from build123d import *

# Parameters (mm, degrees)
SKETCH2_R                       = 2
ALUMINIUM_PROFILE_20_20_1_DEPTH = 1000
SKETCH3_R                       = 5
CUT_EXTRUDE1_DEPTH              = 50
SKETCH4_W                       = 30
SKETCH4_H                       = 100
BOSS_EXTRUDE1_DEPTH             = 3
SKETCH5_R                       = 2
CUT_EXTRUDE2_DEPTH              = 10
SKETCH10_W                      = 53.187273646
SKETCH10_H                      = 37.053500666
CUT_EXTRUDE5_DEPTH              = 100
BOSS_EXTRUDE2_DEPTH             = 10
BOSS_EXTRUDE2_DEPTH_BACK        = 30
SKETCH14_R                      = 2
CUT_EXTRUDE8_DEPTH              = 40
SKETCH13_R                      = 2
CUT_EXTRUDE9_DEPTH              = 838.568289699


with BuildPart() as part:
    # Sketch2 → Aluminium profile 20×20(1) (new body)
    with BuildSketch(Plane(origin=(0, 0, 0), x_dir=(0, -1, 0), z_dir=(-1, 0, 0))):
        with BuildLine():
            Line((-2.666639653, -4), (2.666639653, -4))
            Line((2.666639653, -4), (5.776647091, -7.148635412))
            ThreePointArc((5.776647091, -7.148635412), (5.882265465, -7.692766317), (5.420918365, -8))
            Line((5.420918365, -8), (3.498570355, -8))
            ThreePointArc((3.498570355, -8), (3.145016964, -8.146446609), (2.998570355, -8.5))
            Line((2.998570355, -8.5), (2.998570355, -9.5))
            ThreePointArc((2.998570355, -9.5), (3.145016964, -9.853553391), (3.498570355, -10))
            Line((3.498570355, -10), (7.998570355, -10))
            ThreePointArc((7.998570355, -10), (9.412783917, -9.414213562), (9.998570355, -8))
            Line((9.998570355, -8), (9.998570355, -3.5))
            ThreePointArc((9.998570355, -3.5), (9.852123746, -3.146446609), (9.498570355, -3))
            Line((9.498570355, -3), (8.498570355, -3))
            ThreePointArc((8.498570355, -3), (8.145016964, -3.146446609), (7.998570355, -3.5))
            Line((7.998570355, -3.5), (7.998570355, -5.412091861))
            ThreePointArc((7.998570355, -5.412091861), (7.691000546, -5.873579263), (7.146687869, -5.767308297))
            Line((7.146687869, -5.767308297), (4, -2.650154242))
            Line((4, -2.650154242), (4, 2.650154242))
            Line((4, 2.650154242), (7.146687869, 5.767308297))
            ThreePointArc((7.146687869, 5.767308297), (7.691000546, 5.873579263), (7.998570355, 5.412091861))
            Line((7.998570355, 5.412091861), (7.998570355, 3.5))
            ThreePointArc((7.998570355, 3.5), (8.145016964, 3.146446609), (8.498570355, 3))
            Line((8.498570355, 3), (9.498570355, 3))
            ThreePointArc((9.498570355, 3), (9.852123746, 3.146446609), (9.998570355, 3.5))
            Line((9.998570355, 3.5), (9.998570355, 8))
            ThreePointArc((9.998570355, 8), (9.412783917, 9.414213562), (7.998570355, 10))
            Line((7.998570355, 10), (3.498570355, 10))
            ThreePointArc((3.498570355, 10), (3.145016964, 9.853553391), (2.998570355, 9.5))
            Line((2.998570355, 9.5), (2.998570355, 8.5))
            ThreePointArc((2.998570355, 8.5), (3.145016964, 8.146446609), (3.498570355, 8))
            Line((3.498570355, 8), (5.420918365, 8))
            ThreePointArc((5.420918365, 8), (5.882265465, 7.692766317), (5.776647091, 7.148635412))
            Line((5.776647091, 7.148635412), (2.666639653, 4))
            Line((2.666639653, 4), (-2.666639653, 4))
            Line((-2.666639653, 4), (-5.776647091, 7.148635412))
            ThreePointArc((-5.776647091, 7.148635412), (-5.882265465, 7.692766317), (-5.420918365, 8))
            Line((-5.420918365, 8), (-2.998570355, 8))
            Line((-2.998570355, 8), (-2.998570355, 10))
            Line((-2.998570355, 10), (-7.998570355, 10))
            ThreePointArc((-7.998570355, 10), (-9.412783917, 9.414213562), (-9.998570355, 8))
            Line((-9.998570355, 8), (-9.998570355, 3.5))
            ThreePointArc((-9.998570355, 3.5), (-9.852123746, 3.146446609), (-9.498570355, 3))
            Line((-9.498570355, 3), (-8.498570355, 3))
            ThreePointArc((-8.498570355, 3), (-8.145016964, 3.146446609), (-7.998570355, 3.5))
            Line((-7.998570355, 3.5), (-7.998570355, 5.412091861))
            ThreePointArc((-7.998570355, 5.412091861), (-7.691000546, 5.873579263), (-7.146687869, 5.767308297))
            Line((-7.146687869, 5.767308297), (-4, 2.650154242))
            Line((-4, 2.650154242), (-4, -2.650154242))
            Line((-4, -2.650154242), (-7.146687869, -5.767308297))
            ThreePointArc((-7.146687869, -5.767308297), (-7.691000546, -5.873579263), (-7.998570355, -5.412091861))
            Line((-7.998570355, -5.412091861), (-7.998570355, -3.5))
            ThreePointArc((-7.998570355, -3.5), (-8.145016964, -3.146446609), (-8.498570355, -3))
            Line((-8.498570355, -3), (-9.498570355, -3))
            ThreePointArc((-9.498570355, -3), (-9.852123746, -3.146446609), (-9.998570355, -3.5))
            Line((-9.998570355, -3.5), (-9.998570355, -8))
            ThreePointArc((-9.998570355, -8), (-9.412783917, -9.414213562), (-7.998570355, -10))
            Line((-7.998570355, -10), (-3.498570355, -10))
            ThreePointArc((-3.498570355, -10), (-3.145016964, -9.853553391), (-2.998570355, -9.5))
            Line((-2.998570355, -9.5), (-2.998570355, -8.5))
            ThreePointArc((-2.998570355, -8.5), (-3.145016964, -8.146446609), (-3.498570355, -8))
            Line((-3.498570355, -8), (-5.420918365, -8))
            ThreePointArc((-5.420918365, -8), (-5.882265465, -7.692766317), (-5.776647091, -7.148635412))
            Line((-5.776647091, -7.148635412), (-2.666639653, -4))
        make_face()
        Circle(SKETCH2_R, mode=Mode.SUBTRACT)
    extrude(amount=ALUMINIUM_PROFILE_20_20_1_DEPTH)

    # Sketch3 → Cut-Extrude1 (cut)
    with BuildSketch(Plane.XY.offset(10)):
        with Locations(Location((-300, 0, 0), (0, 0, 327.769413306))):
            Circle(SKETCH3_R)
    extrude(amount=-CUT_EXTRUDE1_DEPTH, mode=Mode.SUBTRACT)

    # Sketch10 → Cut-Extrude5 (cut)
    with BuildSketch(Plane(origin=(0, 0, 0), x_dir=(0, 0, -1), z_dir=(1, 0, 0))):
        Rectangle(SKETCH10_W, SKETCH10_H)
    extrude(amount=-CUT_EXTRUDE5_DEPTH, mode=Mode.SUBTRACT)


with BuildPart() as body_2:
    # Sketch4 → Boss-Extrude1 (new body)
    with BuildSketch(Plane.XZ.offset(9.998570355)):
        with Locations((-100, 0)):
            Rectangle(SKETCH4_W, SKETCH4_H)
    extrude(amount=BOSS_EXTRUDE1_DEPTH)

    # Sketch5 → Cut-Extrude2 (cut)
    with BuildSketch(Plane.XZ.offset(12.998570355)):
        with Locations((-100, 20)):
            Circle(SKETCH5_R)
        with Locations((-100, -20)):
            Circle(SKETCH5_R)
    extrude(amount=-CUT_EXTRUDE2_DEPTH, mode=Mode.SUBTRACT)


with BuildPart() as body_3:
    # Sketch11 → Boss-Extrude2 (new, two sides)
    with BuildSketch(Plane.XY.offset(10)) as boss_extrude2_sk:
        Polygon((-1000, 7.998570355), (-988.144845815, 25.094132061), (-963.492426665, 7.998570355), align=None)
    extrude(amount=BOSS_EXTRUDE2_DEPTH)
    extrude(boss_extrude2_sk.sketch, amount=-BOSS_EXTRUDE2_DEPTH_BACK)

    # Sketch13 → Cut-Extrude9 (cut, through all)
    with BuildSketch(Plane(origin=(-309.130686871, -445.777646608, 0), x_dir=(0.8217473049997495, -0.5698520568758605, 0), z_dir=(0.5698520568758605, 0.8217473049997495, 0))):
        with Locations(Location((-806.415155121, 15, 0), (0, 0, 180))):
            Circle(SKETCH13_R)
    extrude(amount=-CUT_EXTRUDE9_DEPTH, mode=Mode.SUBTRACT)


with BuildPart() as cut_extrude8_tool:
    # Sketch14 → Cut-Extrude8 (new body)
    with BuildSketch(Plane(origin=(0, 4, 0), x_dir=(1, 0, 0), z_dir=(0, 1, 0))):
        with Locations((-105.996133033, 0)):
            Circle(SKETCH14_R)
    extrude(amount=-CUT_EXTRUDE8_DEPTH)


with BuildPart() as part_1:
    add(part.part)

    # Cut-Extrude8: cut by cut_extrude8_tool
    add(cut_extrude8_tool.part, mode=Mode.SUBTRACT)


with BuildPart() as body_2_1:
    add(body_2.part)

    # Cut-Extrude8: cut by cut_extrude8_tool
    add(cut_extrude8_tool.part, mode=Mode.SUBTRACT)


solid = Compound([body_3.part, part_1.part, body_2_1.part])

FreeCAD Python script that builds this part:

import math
import FreeCAD as App
import Part
import Sketcher

V = App.Vector
Q = App.Units.Quantity

doc = App.newDocument("Part")
body = doc.addObject("PartDesign::Body", "Body")

sketch1 = body.newObject("Sketcher::SketchObject", "Sketch")
sketch1.AttachmentSupport = (doc.getObject("YZ_Plane"), [""])
sketch1.MapMode = "FlatFace"
sketch1.addGeometry([
    Part.LineSegment(V(2.66664, -4, 0), V(-2.66664, -4, 0)),
    Part.LineSegment(V(-2.66664, -4, 0), V(-5.776647, -7.148635, 0)),
    Part.ArcOfCircle(Part.Circle(V(-5.420918, -7.5, 0), V(0, 0, 1), 0.5), math.radians(135.353622), math.radians(270)),
    Part.LineSegment(V(-5.420918, -8, 0), V(-3.49857, -8, 0)),
    Part.ArcOfCircle(Part.Circle(V(-3.49857, -8.5, 0), V(0, 0, 1), 0.5), math.radians(0), math.radians(90)),
    Part.LineSegment(V(-2.99857, -8.5, 0), V(-2.99857, -9.5, 0)),
    Part.ArcOfCircle(Part.Circle(V(-3.49857, -9.5, 0), V(0, 0, 1), 0.5), math.radians(-90), math.radians(0)),
    Part.LineSegment(V(-3.49857, -10, 0), V(-7.99857, -10, 0)),
    Part.ArcOfCircle(Part.Circle(V(-7.99857, -8, 0), V(0, 0, 1), 2), math.radians(-180), math.radians(-90)),
    Part.LineSegment(V(-9.99857, -8, 0), V(-9.99857, -3.5, 0)),
    Part.ArcOfCircle(Part.Circle(V(-9.49857, -3.5, 0), V(0, 0, 1), 0.5), math.radians(90), math.radians(180)),
    Part.LineSegment(V(-9.49857, -3, 0), V(-8.49857, -3, 0)),
    Part.ArcOfCircle(Part.Circle(V(-8.49857, -3.5, 0), V(0, 0, 1), 0.5), math.radians(0), math.radians(90)),
    Part.LineSegment(V(-7.99857, -3.5, 0), V(-7.99857, -5.412092, 0)),
    Part.ArcOfCircle(Part.Circle(V(-7.49857, -5.412092, 0), V(0, 0, 1), 0.5), math.radians(180), math.radians(314.729854)),
    Part.LineSegment(V(-7.146688, -5.767308, 0), V(-4, -2.650154, 0)),
    Part.LineSegment(V(-4, -2.650154, 0), V(-4, 2.650154, 0)),
    Part.LineSegment(V(-4, 2.650154, 0), V(-7.146688, 5.767308, 0)),
    Part.ArcOfCircle(Part.Circle(V(-7.49857, 5.412092, 0), V(0, 0, 1), 0.5), math.radians(45.270146), math.radians(180)),
    Part.LineSegment(V(-7.99857, 5.412092, 0), V(-7.99857, 3.5, 0)),
    Part.ArcOfCircle(Part.Circle(V(-8.49857, 3.5, 0), V(0, 0, 1), 0.5), math.radians(-90), math.radians(0)),
    Part.LineSegment(V(-8.49857, 3, 0), V(-9.49857, 3, 0)),
    Part.ArcOfCircle(Part.Circle(V(-9.49857, 3.5, 0), V(0, 0, 1), 0.5), math.radians(180), math.radians(270)),
    Part.LineSegment(V(-9.99857, 3.5, 0), V(-9.99857, 8, 0)),
    Part.ArcOfCircle(Part.Circle(V(-7.99857, 8, 0), V(0, 0, 1), 2), math.radians(90), math.radians(180)),
    Part.LineSegment(V(-7.99857, 10, 0), V(-3.49857, 10, 0)),
    Part.ArcOfCircle(Part.Circle(V(-3.49857, 9.5, 0), V(0, 0, 1), 0.5), math.radians(0), math.radians(90)),
    Part.LineSegment(V(-2.99857, 9.5, 0), V(-2.99857, 8.5, 0)),
    Part.ArcOfCircle(Part.Circle(V(-3.49857, 8.5, 0), V(0, 0, 1), 0.5), math.radians(-90), math.radians(0)),
    Part.LineSegment(V(-3.49857, 8, 0), V(-5.420918, 8, 0)),
    Part.ArcOfCircle(Part.Circle(V(-5.420918, 7.5, 0), V(0, 0, 1), 0.5), math.radians(90), math.radians(224.646378)),
    Part.LineSegment(V(-5.776647, 7.148635, 0), V(-2.66664, 4, 0)),
    Part.LineSegment(V(-2.66664, 4, 0), V(2.66664, 4, 0)),
    Part.LineSegment(V(2.66664, 4, 0), V(5.776647, 7.148635, 0)),
    Part.ArcOfCircle(Part.Circle(V(5.420918, 7.5, 0), V(0, 0, 1), 0.5), math.radians(-44.646378), math.radians(90)),
    Part.LineSegment(V(5.420918, 8, 0), V(2.99857, 8, 0)),
    Part.LineSegment(V(2.99857, 8, 0), V(2.99857, 10, 0)),
    Part.LineSegment(V(2.99857, 10, 0), V(7.99857, 10, 0)),
    Part.ArcOfCircle(Part.Circle(V(7.99857, 8, 0), V(0, 0, 1), 2), math.radians(0), math.radians(90)),
    Part.LineSegment(V(9.99857, 8, 0), V(9.99857, 3.5, 0)),
    Part.ArcOfCircle(Part.Circle(V(9.49857, 3.5, 0), V(0, 0, 1), 0.5), math.radians(-90), math.radians(0)),
    Part.LineSegment(V(9.49857, 3, 0), V(8.49857, 3, 0)),
    Part.ArcOfCircle(Part.Circle(V(8.49857, 3.5, 0), V(0, 0, 1), 0.5), math.radians(180), math.radians(270)),
    Part.LineSegment(V(7.99857, 3.5, 0), V(7.99857, 5.412092, 0)),
    Part.ArcOfCircle(Part.Circle(V(7.49857, 5.412092, 0), V(0, 0, 1), 0.5), math.radians(0), math.radians(134.729854)),
    Part.LineSegment(V(7.146688, 5.767308, 0), V(4, 2.650154, 0)),
    Part.LineSegment(V(4, 2.650154, 0), V(4, -2.650154, 0)),
    Part.LineSegment(V(4, -2.650154, 0), V(7.146688, -5.767308, 0)),
    Part.ArcOfCircle(Part.Circle(V(7.49857, -5.412092, 0), V(0, 0, 1), 0.5), math.radians(-134.729854), math.radians(0)),
    Part.LineSegment(V(7.99857, -5.412092, 0), V(7.99857, -3.5, 0)),
    Part.ArcOfCircle(Part.Circle(V(8.49857, -3.5, 0), V(0, 0, 1), 0.5), math.radians(90), math.radians(180)),
    Part.LineSegment(V(8.49857, -3, 0), V(9.49857, -3, 0)),
    Part.ArcOfCircle(Part.Circle(V(9.49857, -3.5, 0), V(0, 0, 1), 0.5), math.radians(0), math.radians(90)),
    Part.LineSegment(V(9.99857, -3.5, 0), V(9.99857, -8, 0)),
    Part.ArcOfCircle(Part.Circle(V(7.99857, -8, 0), V(0, 0, 1), 2), math.radians(-90), math.radians(0)),
    Part.LineSegment(V(7.99857, -10, 0), V(3.49857, -10, 0)),
    Part.ArcOfCircle(Part.Circle(V(3.49857, -9.5, 0), V(0, 0, 1), 0.5), math.radians(180), math.radians(270)),
    Part.LineSegment(V(2.99857, -9.5, 0), V(2.99857, -8.5, 0)),
    Part.ArcOfCircle(Part.Circle(V(3.49857, -8.5, 0), V(0, 0, 1), 0.5), math.radians(90), math.radians(180)),
    Part.LineSegment(V(3.49857, -8, 0), V(5.420918, -8, 0)),
    Part.ArcOfCircle(Part.Circle(V(5.420918, -7.5, 0), V(0, 0, 1), 0.5), math.radians(-90), math.radians(44.646378)),
    Part.LineSegment(V(5.776647, -7.148635, 0), V(2.66664, -4, 0)),
    Part.Circle(V(0, 0, 0), V(0, 0, 1), 2),
], False)
sketch1.addConstraint([
    Sketcher.Constraint("Coincident", 0, 2, 1, 1),
    Sketcher.Constraint("Tangent", 1, 2, 2, 1),
    Sketcher.Constraint("Tangent", 2, 2, 3, 1),
    Sketcher.Constraint("Tangent", 3, 2, 4, 2),
    Sketcher.Constraint("Tangent", 4, 1, 5, 1),
    Sketcher.Constraint("Tangent", 5, 2, 6, 2),
    Sketcher.Constraint("Tangent", 6, 1, 7, 1),
    Sketcher.Constraint("Tangent", 7, 2, 8, 2),
    Sketcher.Constraint("Tangent", 8, 1, 9, 1),
    Sketcher.Constraint("Tangent", 9, 2, 10, 2),
    Sketcher.Constraint("Tangent", 10, 1, 11, 1),
    Sketcher.Constraint("Tangent", 11, 2, 12, 2),
    Sketcher.Constraint("Tangent", 12, 1, 13, 1),
    Sketcher.Constraint("Tangent", 13, 2, 14, 1),
    Sketcher.Constraint("Tangent", 14, 2, 15, 1),
    Sketcher.Constraint("Coincident", 15, 2, 16, 1),
    Sketcher.Constraint("Coincident", 16, 2, 17, 1),
    Sketcher.Constraint("Tangent", 17, 2, 18, 1),
    Sketcher.Constraint("Tangent", 18, 2, 19, 1),
    Sketcher.Constraint("Tangent", 19, 2, 20, 2),
    Sketcher.Constraint("Tangent", 20, 1, 21, 1),
    Sketcher.Constraint("Tangent", 21, 2, 22, 2),
    Sketcher.Constraint("Tangent", 22, 1, 23, 1),
    Sketcher.Constraint("Tangent", 23, 2, 24, 2),
    Sketcher.Constraint("Tangent", 24, 1, 25, 1),
    Sketcher.Constraint("Tangent", 25, 2, 26, 2),
    Sketcher.Constraint("Tangent", 26, 1, 27, 1),
    Sketcher.Constraint("Tangent", 27, 2, 28, 2),
    Sketcher.Constraint("Tangent", 28, 1, 29, 1),
    Sketcher.Constraint("Tangent", 29, 2, 30, 1),
    Sketcher.Constraint("Tangent", 30, 2, 31, 1),
    Sketcher.Constraint("Coincident", 31, 2, 32, 1),
    Sketcher.Constraint("Coincident", 32, 2, 33, 1),
    Sketcher.Constraint("Tangent", 33, 2, 34, 1),
    Sketcher.Constraint("Tangent", 34, 2, 35, 1),
    Sketcher.Constraint("Coincident", 35, 2, 36, 1),
    Sketcher.Constraint("Coincident", 36, 2, 37, 1),
    Sketcher.Constraint("Tangent", 37, 2, 38, 2),
    Sketcher.Constraint("Tangent", 38, 1, 39, 1),
    Sketcher.Constraint("Tangent", 39, 2, 40, 2),
    Sketcher.Constraint("Tangent", 40, 1, 41, 1),
    Sketcher.Constraint("Tangent", 41, 2, 42, 2),
    Sketcher.Constraint("Tangent", 42, 1, 43, 1),
    Sketcher.Constraint("Tangent", 43, 2, 44, 1),
    Sketcher.Constraint("Tangent", 44, 2, 45, 1),
    Sketcher.Constraint("Coincident", 45, 2, 46, 1),
    Sketcher.Constraint("Coincident", 46, 2, 47, 1),
    Sketcher.Constraint("Tangent", 47, 2, 48, 1),
    Sketcher.Constraint("Tangent", 48, 2, 49, 1),
    Sketcher.Constraint("Tangent", 49, 2, 50, 2),
    Sketcher.Constraint("Tangent", 50, 1, 51, 1),
    Sketcher.Constraint("Tangent", 51, 2, 52, 2),
    Sketcher.Constraint("Tangent", 52, 1, 53, 1),
    Sketcher.Constraint("Tangent", 53, 2, 54, 2),
    Sketcher.Constraint("Tangent", 54, 1, 55, 1),
    Sketcher.Constraint("Tangent", 55, 2, 56, 2),
    Sketcher.Constraint("Tangent", 56, 1, 57, 1),
    Sketcher.Constraint("Tangent", 57, 2, 58, 2),
    Sketcher.Constraint("Tangent", 58, 1, 59, 1),
    Sketcher.Constraint("Tangent", 59, 2, 60, 1),
    Sketcher.Constraint("Tangent", 60, 2, 61, 1),
    Sketcher.Constraint("Coincident", 61, 2, 0, 1),
    Sketcher.Constraint("Horizontal", 0),
    Sketcher.Constraint("Horizontal", 3),
    Sketcher.Constraint("Vertical", 5),
    Sketcher.Constraint("Horizontal", 7),
    Sketcher.Constraint("Vertical", 9),
    Sketcher.Constraint("Horizontal", 11),
    Sketcher.Constraint("Vertical", 13),
    Sketcher.Constraint("Vertical", 16),
    Sketcher.Constraint("Vertical", 19),
    Sketcher.Constraint("Horizontal", 21),
    Sketcher.Constraint("Vertical", 23),
    Sketcher.Constraint("Horizontal", 25),
    Sketcher.Constraint("Vertical", 27),
    Sketcher.Constraint("Horizontal", 29),
    Sketcher.Constraint("Horizontal", 32),
    Sketcher.Constraint("Horizontal", 35),
    Sketcher.Constraint("Vertical", 36),
    Sketcher.Constraint("Horizontal", 37),
    Sketcher.Constraint("Vertical", 39),
    Sketcher.Constraint("Horizontal", 41),
    Sketcher.Constraint("Vertical", 43),
    Sketcher.Constraint("Vertical", 46),
    Sketcher.Constraint("Vertical", 49),
    Sketcher.Constraint("Horizontal", 51),
    Sketcher.Constraint("Vertical", 53),
    Sketcher.Constraint("Horizontal", 55),
    Sketcher.Constraint("Vertical", 57),
    Sketcher.Constraint("Horizontal", 59),
    Sketcher.Constraint("Coincident", 62, 3, -1, 1),
    Sketcher.Constraint("Equal", 2, 4),
    Sketcher.Constraint("Equal", 4, 6),
    Sketcher.Constraint("Equal", 6, 10),
    Sketcher.Constraint("Equal", 10, 12),
    Sketcher.Constraint("Equal", 12, 14),
    Sketcher.Constraint("Equal", 14, 18),
    Sketcher.Constraint("Equal", 18, 20),
    Sketcher.Constraint("Equal", 20, 22),
    Sketcher.Constraint("Equal", 8, 24),
    Sketcher.Constraint("Equal", 22, 26),
    Sketcher.Constraint("Equal", 26, 28),
    Sketcher.Constraint("Equal", 28, 30),
    Sketcher.Constraint("Equal", 30, 34),
    Sketcher.Constraint("Equal", 24, 38),
    Sketcher.Constraint("Equal", 34, 40),
    Sketcher.Constraint("Equal", 40, 42),
    Sketcher.Constraint("Equal", 42, 44),
    Sketcher.Constraint("Equal", 44, 48),
    Sketcher.Constraint("Equal", 48, 50),
    Sketcher.Constraint("Equal", 50, 52),
    Sketcher.Constraint("Equal", 38, 54),
    Sketcher.Constraint("Equal", 52, 56),
    Sketcher.Constraint("Equal", 56, 58),
    Sketcher.Constraint("Equal", 58, 60),
    Sketcher.Constraint("Equal", 54, 62),
    Sketcher.Constraint("Symmetric", 2, 3, 34, 3, -1, 1),
    Sketcher.Constraint("Symmetric", 8, 3, 38, 3, -1, 1),
    Sketcher.Constraint("Symmetric", 12, 3, 42, 3, -1, 1),
    Sketcher.Constraint("Symmetric", 18, 3, 48, 3, -1, 1),
    Sketcher.Constraint("Symmetric", 22, 3, 52, 3, -1, 1),
    Sketcher.Constraint("Symmetric", 26, 3, 56, 3, -1, 1),
    Sketcher.Constraint("Symmetric", 30, 3, 60, 3, -1, 1),
    Sketcher.Constraint("Symmetric", 0, 2, 32, 2, -1, 1),
    Sketcher.Constraint("Symmetric", 14, 2, 44, 2, -1, 1),
    Sketcher.Constraint("Symmetric", 16, 2, 46, 2, -1, 1),
    Sketcher.Constraint("Symmetric", 30, 3, 34, 3, -2),
    Sketcher.Constraint("Symmetric", 24, 3, 38, 3, -2),
    Sketcher.Constraint("Symmetric", 20, 3, 42, 3, -2),
    Sketcher.Constraint("Symmetric", 17, 2, 44, 2, -2),
    Sketcher.Constraint("Parallel", 31, 61),
    Sketcher.Constraint("Horizontal", 54, 3, 2, 2),
    Sketcher.Constraint("Horizontal", 30, 2, 33, 2),
    Sketcher.Constraint("Vertical", 6, 3, 26, 3),
    Sketcher.Constraint("Vertical", 7, 2, 12, 1),
    Sketcher.Constraint("Vertical", 36, 2, 56, 1),
    Sketcher.Constraint("Equal", 55, 9),
    Sketcher.Constraint("Diameter", 62, Q("4 mm")),
    Sketcher.Constraint("Radius", 2, Q("0.5 mm")),
    Sketcher.Constraint("DistanceX", 37, 1, 37, 2, Q("5 mm")),
    Sketcher.Constraint("DistanceY", 8, 3, -1, 1, Q("8 mm")),
    Sketcher.Constraint("DistanceY", 0, 2, -1, 1, Q("4 mm")),
    Sketcher.Constraint("DistanceX", 15, 2, -1, 1, Q("4 mm")),
    Sketcher.Constraint("DistanceX", 0, 2, 0, 1, Q("5.333279 mm")),
    Sketcher.Constraint("DistanceX", 3, 1, 3, 2, Q("1.922348 mm")),
    Sketcher.Constraint("DistanceY", 13, 2, 13, 1, Q("1.912092 mm")),
    Sketcher.Constraint("DistanceY", 16, 1, 16, 2, Q("5.300308 mm")),
    Sketcher.Constraint("DistanceX", 2, 3, -1, 1, Q("5.420918 mm")),
])
pad1 = body.newObject("PartDesign::Pad", "Pad")
pad1.Profile = sketch1
pad1.Length = 1000
pad1.Reversed = True

sketch2 = body.newObject("Sketcher::SketchObject", "Sketch001")
sketch2.AttachmentSupport = (doc.getObject("XY_Plane"), [""])
sketch2.MapMode = "FlatFace"
sketch2.AttachmentOffset = App.Placement(V(0, 0, 10), App.Rotation())
sketch2.addGeometry(Part.Circle(V(-300, 0, 0), V(0, 0, 1), 5), False)
sketch2.addConstraint([
    Sketcher.Constraint("PointOnObject", 0, 3, -1),
    Sketcher.Constraint("Diameter", 0, Q("10 mm")),
    Sketcher.Constraint("DistanceX", 0, 3, -1, 1, Q("300 mm")),
])
pocket1 = body.newObject("PartDesign::Pocket", "Pocket")
pocket1.Profile = sketch2
pocket1.Length = 50

sketch3 = body.newObject("Sketcher::SketchObject", "Sketch002")
sketch3.AttachmentSupport = (doc.getObject("YZ_Plane"), [""])
sketch3.MapMode = "FlatFace"
sketch3.addGeometry([
    Part.LineSegment(V(18.52675, 26.593637, 0), V(-18.52675, 26.593637, 0)),
    Part.LineSegment(V(-18.52675, 26.593637, 0), V(-18.52675, -26.593637, 0)),
    Part.LineSegment(V(-18.52675, -26.593637, 0), V(18.52675, -26.593637, 0)),
    Part.LineSegment(V(18.52675, -26.593637, 0), V(18.52675, 26.593637, 0)),
], False)
sketch3.addConstraint([
    Sketcher.Constraint("Coincident", 0, 2, 1, 1),
    Sketcher.Constraint("Coincident", 1, 2, 2, 1),
    Sketcher.Constraint("Coincident", 2, 2, 3, 1),
    Sketcher.Constraint("Coincident", 3, 2, 0, 1),
    Sketcher.Constraint("Horizontal", 0),
    Sketcher.Constraint("Vertical", 1),
    Sketcher.Constraint("Horizontal", 2),
    Sketcher.Constraint("Vertical", 3),
    Sketcher.Constraint("Symmetric", 0, 2, 2, 2, -1, 1),
    Sketcher.Constraint("DistanceX", 0, 2, 0, 1, Q("37.053501 mm")),
    Sketcher.Constraint("DistanceY", 1, 2, 1, 1, Q("53.187274 mm")),
])
pocket2 = body.newObject("PartDesign::Pocket", "Pocket001")
pocket2.Profile = sketch3
pocket2.Length = 100
body2 = doc.addObject("PartDesign::Body", "Body001")

sketch4 = body2.newObject("Sketcher::SketchObject", "Sketch003")
sketch4.AttachmentSupport = (doc.getObject("XZ_Plane001"), [""])
sketch4.MapMode = "FlatFace"
sketch4.AttachmentOffset = App.Placement(V(0, 0, 9.99857), App.Rotation())
sketch4.addGeometry([
    Part.LineSegment(V(-115, 50, 0), V(-115, -50, 0)),
    Part.LineSegment(V(-115, -50, 0), V(-85, -50, 0)),
    Part.LineSegment(V(-85, -50, 0), V(-85, 50, 0)),
    Part.LineSegment(V(-85, 50, 0), V(-115, 50, 0)),
], False)
sketch4.addConstraint([
    Sketcher.Constraint("Coincident", 0, 2, 1, 1),
    Sketcher.Constraint("Coincident", 1, 2, 2, 1),
    Sketcher.Constraint("Coincident", 2, 2, 3, 1),
    Sketcher.Constraint("Coincident", 3, 2, 0, 1),
    Sketcher.Constraint("Vertical", 0),
    Sketcher.Constraint("Horizontal", 1),
    Sketcher.Constraint("Vertical", 2),
    Sketcher.Constraint("Horizontal", 3),
    Sketcher.Constraint("DistanceX", 1, 1, 1, 2, Q("30 mm")),
    Sketcher.Constraint("DistanceY", 0, 2, 0, 1, Q("100 mm")),
    Sketcher.Constraint("DistanceX", 0, 2, -1, 1, Q("115 mm")),
    Sketcher.Constraint("DistanceY", 0, 2, -1, 1, Q("50 mm")),
])
pad2 = body2.newObject("PartDesign::Pad", "Pad001")
pad2.Profile = sketch4
pad2.Length = 3

sketch5 = body2.newObject("Sketcher::SketchObject", "Sketch004")
sketch5.AttachmentSupport = (doc.getObject("XZ_Plane001"), [""])
sketch5.MapMode = "FlatFace"
sketch5.AttachmentOffset = App.Placement(V(0, 0, 12.99857), App.Rotation())
sketch5.addGeometry([
    Part.Circle(V(-100, 20, 0), V(0, 0, 1), 2),
    Part.Circle(V(-100, -20, 0), V(0, 0, 1), 2),
], False)
sketch5.addConstraint([
    Sketcher.Constraint("Equal", 0, 1),
    Sketcher.Constraint("Symmetric", 0, 3, 1, 3, -1),
    Sketcher.Constraint("Diameter", 0, Q("4 mm")),
    Sketcher.Constraint("DistanceX", 0, 3, -1, 1, Q("100 mm")),
    Sketcher.Constraint("DistanceY", -1, 1, 0, 3, Q("20 mm")),
])
pocket3 = body2.newObject("PartDesign::Pocket", "Pocket002")
pocket3.Profile = sketch5
pocket3.Length = 10
body3 = doc.addObject("PartDesign::Body", "Body002")

sketch6 = body3.newObject("Sketcher::SketchObject", "Sketch005")
sketch6.AttachmentSupport = (doc.getObject("XY_Plane002"), [""])
sketch6.MapMode = "FlatFace"
sketch6.AttachmentOffset = App.Placement(V(0, 0, 10), App.Rotation())
sketch6.addGeometry([
    Part.LineSegment(V(-988.144846, 25.094132, 0), V(-1000, 7.99857, 0)),
    Part.LineSegment(V(-1000, 7.99857, 0), V(-963.492427, 7.99857, 0)),
    Part.LineSegment(V(-963.492427, 7.99857, 0), V(-988.144846, 25.094132, 0)),
], False)
sketch6.addConstraint([
    Sketcher.Constraint("Coincident", 0, 2, 1, 1),
    Sketcher.Constraint("Coincident", 1, 2, 2, 1),
    Sketcher.Constraint("Coincident", 2, 2, 0, 1),
    Sketcher.Constraint("Horizontal", 1),
    Sketcher.Constraint("Perpendicular", 0, 2),
    Sketcher.Constraint("Distance", 2, Q("30 mm")),
    Sketcher.Constraint("DistanceX", 0, 2, -1, 1, Q("1000 mm")),
    Sketcher.Constraint("DistanceX", 1, 1, 1, 2, Q("36.507573 mm")),
    Sketcher.Constraint("DistanceY", -1, 1, 0, 2, Q("7.99857 mm")),
])
pad3 = body3.newObject("PartDesign::Pad", "Pad002")
pad3.Profile = sketch6
pad3.Type = "TwoLengths"
pad3.Length = 10
pad3.Length2 = 30

sketch7 = body3.newObject("Sketcher::SketchObject", "Sketch006")
sketch7.Placement = App.Placement(V(-309.130687, -445.777647, 0), App.Rotation(V(0.821747305, -0.569852057, 0), V(0, 0, -1), V(0.569852057, 0.821747305, 0), "ZXY"))
sketch7.addGeometry(Part.Circle(V(-806.415155, 15, 0), V(0, 0, 1), 2), False)
sketch7.addConstraint([
    Sketcher.Constraint("Diameter", 0, Q("4 mm")),
    Sketcher.Constraint("DistanceY", -1, 1, 0, 3, Q("15 mm")),
    Sketcher.Constraint("DistanceX", 0, 3, -1, 1, Q("806.415155 mm")),
])
pocket4 = body3.newObject("PartDesign::Pocket", "Pocket003")
pocket4.Profile = sketch7
pocket4.Type = "ThroughAll"
body4 = doc.addObject("PartDesign::Body", "Body003")

sketch8 = body4.newObject("Sketcher::SketchObject", "Sketch007")
sketch8.AttachmentSupport = (doc.getObject("XZ_Plane003"), [""])
sketch8.MapMode = "FlatFace"
sketch8.AttachmentOffset = App.Placement(V(0, 0, -4), App.Rotation())
sketch8.addGeometry(Part.Circle(V(-105.996133, 0, 0), V(0, 0, 1), 2), False)
sketch8.addConstraint([
    Sketcher.Constraint("PointOnObject", 0, 3, -1),
    Sketcher.Constraint("Diameter", 0, Q("4 mm")),
    Sketcher.Constraint("DistanceX", 0, 3, -1, 1, Q("105.996133 mm")),
])
pad4 = body4.newObject("PartDesign::Pad", "Pad003")
pad4.Profile = sketch8
pad4.Length = 40
doc.recompute()

body5 = doc.addObject("PartDesign::Body", "Body004")
body5.BaseFeature = body4
boolean = body.newObject("PartDesign::Boolean", "Boolean")
boolean.Type = "Cut"
boolean.addObjects([body5])
doc.recompute()

boolean2 = body2.newObject("PartDesign::Boolean", "Boolean001")
boolean2.Type = "Cut"
boolean2.addObjects([body4])

doc.recompute()
